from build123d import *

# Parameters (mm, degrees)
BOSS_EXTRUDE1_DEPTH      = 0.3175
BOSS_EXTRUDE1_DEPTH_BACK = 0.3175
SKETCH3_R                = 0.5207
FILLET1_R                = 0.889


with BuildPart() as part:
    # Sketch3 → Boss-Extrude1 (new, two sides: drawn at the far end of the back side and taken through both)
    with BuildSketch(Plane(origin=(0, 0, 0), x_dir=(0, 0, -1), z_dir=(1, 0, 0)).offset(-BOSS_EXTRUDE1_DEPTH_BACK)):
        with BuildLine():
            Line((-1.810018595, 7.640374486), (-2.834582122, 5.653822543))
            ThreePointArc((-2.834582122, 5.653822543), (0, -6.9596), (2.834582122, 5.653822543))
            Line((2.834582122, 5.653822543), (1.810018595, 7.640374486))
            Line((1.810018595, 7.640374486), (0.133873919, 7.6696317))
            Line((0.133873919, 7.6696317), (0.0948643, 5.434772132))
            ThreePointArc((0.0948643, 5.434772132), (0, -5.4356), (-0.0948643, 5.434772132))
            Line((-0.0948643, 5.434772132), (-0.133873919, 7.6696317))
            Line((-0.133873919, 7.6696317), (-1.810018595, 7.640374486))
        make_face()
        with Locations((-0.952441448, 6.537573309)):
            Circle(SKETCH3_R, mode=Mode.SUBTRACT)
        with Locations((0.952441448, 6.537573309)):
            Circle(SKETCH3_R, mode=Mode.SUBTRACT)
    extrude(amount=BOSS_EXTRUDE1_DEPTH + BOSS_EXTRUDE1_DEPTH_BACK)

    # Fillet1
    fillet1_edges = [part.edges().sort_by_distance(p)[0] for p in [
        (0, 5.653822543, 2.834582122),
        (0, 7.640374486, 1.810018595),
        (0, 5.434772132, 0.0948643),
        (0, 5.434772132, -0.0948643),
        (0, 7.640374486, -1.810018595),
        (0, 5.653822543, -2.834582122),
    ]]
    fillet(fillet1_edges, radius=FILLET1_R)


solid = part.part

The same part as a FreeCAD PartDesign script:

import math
import FreeCAD as App
import Part
import Sketcher
from FreeCAD import Vector
Q = App.Units.Quantity


def edges_at(feature, points):
    """Names of the edges that pass closest to the given points."""
    edges = feature.Shape.Edges
    near = lambda p: min(range(len(edges)), key=lambda i: edges[i].distToShape(Part.Vertex(*p))[0])
    return sorted({f"Edge{near(p) + 1}" for p in points})

doc = App.newDocument("Part")
params = doc.addObject("Spreadsheet::Sheet", "Params")
for row, (alias, value) in enumerate([
    ("sketch1_diameter", "0.041 in"),
    ("sketch1_radius", "0.214 in"),
    ("sketch1_length", "0.088 in"),
    ("sketch1_length2", "0.066 in"),
    ("pad1_length", "0.0125 in"),
    ("pad1_length2", "0.0125 in"),
    ("fillet_radius", "0.035 in"),
], start=1):
    params.set(f"A{row}", alias)
    params.set(f"B{row}", "=" + value)
    params.setAlias(f"B{row}", alias)

body = doc.addObject("PartDesign::Body", "Body")

# Sketch on YZ plane
sketch1 = body.newObject("Sketcher::SketchObject", "Sketch")
sketch1.AttachmentSupport = (doc.getObject("YZ_Plane"), [""])
sketch1.MapMode = "FlatFace"
sketch1.addGeometry(Part.LineSegment(Vector(7.64, 1.81, 0), Vector(5.65, 2.83, 0)), False)
sketch1.addGeometry(Part.ArcOfCircle(Part.Circle(Vector(-0.33, 0, 0), Vector(0, 0, 1), 6.63), math.radians(25), math.radians(335)), False)
sketch1.addGeometry(Part.LineSegment(Vector(5.65, -2.83, 0), Vector(7.64, -1.81, 0)), False)
sketch1.addGeometry(Part.LineSegment(Vector(7.64, -1.81, 0), Vector(7.67, -0.13, 0)), False)
sketch1.addGeometry(Part.LineSegment(Vector(7.67, -0.13, 0), Vector(5.43, -0.09, 0)), False)
sketch1.addGeometry(Part.ArcOfCircle(Part.Circle(Vector(0, 0, 0), Vector(0, 0, 1), 5.44), math.radians(1), math.radians(359)), False)
sketch1.addGeometry(Part.LineSegment(Vector(5.43, 0.09, 0), Vector(7.67, 0.13, 0)), False)
sketch1.addGeometry(Part.LineSegment(Vector(7.67, 0.13, 0), Vector(7.64, 1.81, 0)), False)
sketch1.addGeometry(Part.Circle(Vector(6.54, 0.95, 0), Vector(0, 0, 1), 0.52), False)
sketch1.addGeometry(Part.Circle(Vector(6.54, -0.95, 0), Vector(0, 0, 1), 0.52), False)
sketch1.addConstraint(Sketcher.Constraint("Coincident", 0, 2, 1, 1))
sketch1.addConstraint(Sketcher.Constraint("Coincident", 1, 2, 2, 1))
sketch1.addConstraint(Sketcher.Constraint("Coincident", 2, 2, 3, 1))
sketch1.addConstraint(Sketcher.Constraint("Coincident", 3, 2, 4, 1))
sketch1.addConstraint(Sketcher.Constraint("Coincident", 4, 2, 5, 2))
sketch1.addConstraint(Sketcher.Constraint("Coincident", 5, 1, 6, 1))
sketch1.addConstraint(Sketcher.Constraint("Coincident", 6, 2, 7, 1))
sketch1.addConstraint(Sketcher.Constraint("Coincident", 7, 2, 0, 1))
sketch1.addConstraint(Sketcher.Constraint("Coincident", 5, 3, -1, 1))
sketch1.addConstraint(Sketcher.Constraint("Equal", 8, 9))
sketch1.addConstraint(Sketcher.Constraint("Symmetric", 8, 3, 9, 3, -1))
sketch1.addConstraint(Sketcher.Constraint("Symmetric", 0, 2, 1, 2, -1))
sketch1.addConstraint(Sketcher.Constraint("Symmetric", 3, 2, 6, 2, -1))
sketch1.addConstraint(Sketcher.Constraint("Symmetric", 2, 2, 7, 2, -1))
sketch1.addConstraint(Sketcher.Constraint("Perpendicular", 3, 4))
sketch1.addConstraint(Sketcher.Constraint("Perpendicular", 6, 7))
sketch1.addConstraint(Sketcher.Constraint("Equal", 2, 4))
sketch1.addConstraint(Sketcher.Constraint("Diameter", 8, Q("0.041 in")))
sketch1.addConstraint(Sketcher.Constraint("Angle", 3, Q("89 deg")))
sketch1.addConstraint(Sketcher.Constraint("Radius", 5, Q("0.214 in")))
sketch1.addConstraint(Sketcher.Constraint("Distance", 0, Q("0.088 in")))
sketch1.addConstraint(Sketcher.Constraint("Distance", 3, Q("0.066 in")))
sketch1.addConstraint(Sketcher.Constraint("Radius", 1, 6.625215))
sketch1.addConstraint(Sketcher.Constraint("DistanceY", 8, 3, 0, 2, Q("0.0741 in")))
sketch1.addConstraint(Sketcher.Constraint("DistanceX", 9, 3, 2, 2, 1.102801))
sketch1.addConstraint(Sketcher.Constraint("DistanceY", 2, 2, 0, 2, 4.644601))
sketch1.addConstraint(Sketcher.Constraint("DistanceY", -1, 1, 8, 3, 0.952441))
sketch1.setExpression("Constraints[17]", "Params.sketch1_diameter")
sketch1.setExpression("Constraints[19]", "Params.sketch1_radius")
sketch1.setExpression("Constraints[20]", "Params.sketch1_length")
sketch1.setExpression("Constraints[21]", "Params.sketch1_length2")
pad1 = body.newObject("PartDesign::Pad", "Pad")
pad1.Profile = sketch1
pad1.Type = "TwoLengths"
pad1.setExpression("Length", "Params.pad1_length")
pad1.setExpression("Length2", "Params.pad1_length2")
doc.recompute()

fillet = body.newObject("PartDesign::Fillet", "Fillet")
fillet.Base = (pad1, edges_at(pad1, [
    (0, 5.654, 2.835),
    (0, 7.64, 1.81),
    (0, 5.435, 0.095),
    (0, 5.435, -0.095),
    (0, 7.64, -1.81),
    (0, 5.654, -2.835),
]))
fillet.setExpression("Radius", "Params.fillet_radius")

doc.recompute()
